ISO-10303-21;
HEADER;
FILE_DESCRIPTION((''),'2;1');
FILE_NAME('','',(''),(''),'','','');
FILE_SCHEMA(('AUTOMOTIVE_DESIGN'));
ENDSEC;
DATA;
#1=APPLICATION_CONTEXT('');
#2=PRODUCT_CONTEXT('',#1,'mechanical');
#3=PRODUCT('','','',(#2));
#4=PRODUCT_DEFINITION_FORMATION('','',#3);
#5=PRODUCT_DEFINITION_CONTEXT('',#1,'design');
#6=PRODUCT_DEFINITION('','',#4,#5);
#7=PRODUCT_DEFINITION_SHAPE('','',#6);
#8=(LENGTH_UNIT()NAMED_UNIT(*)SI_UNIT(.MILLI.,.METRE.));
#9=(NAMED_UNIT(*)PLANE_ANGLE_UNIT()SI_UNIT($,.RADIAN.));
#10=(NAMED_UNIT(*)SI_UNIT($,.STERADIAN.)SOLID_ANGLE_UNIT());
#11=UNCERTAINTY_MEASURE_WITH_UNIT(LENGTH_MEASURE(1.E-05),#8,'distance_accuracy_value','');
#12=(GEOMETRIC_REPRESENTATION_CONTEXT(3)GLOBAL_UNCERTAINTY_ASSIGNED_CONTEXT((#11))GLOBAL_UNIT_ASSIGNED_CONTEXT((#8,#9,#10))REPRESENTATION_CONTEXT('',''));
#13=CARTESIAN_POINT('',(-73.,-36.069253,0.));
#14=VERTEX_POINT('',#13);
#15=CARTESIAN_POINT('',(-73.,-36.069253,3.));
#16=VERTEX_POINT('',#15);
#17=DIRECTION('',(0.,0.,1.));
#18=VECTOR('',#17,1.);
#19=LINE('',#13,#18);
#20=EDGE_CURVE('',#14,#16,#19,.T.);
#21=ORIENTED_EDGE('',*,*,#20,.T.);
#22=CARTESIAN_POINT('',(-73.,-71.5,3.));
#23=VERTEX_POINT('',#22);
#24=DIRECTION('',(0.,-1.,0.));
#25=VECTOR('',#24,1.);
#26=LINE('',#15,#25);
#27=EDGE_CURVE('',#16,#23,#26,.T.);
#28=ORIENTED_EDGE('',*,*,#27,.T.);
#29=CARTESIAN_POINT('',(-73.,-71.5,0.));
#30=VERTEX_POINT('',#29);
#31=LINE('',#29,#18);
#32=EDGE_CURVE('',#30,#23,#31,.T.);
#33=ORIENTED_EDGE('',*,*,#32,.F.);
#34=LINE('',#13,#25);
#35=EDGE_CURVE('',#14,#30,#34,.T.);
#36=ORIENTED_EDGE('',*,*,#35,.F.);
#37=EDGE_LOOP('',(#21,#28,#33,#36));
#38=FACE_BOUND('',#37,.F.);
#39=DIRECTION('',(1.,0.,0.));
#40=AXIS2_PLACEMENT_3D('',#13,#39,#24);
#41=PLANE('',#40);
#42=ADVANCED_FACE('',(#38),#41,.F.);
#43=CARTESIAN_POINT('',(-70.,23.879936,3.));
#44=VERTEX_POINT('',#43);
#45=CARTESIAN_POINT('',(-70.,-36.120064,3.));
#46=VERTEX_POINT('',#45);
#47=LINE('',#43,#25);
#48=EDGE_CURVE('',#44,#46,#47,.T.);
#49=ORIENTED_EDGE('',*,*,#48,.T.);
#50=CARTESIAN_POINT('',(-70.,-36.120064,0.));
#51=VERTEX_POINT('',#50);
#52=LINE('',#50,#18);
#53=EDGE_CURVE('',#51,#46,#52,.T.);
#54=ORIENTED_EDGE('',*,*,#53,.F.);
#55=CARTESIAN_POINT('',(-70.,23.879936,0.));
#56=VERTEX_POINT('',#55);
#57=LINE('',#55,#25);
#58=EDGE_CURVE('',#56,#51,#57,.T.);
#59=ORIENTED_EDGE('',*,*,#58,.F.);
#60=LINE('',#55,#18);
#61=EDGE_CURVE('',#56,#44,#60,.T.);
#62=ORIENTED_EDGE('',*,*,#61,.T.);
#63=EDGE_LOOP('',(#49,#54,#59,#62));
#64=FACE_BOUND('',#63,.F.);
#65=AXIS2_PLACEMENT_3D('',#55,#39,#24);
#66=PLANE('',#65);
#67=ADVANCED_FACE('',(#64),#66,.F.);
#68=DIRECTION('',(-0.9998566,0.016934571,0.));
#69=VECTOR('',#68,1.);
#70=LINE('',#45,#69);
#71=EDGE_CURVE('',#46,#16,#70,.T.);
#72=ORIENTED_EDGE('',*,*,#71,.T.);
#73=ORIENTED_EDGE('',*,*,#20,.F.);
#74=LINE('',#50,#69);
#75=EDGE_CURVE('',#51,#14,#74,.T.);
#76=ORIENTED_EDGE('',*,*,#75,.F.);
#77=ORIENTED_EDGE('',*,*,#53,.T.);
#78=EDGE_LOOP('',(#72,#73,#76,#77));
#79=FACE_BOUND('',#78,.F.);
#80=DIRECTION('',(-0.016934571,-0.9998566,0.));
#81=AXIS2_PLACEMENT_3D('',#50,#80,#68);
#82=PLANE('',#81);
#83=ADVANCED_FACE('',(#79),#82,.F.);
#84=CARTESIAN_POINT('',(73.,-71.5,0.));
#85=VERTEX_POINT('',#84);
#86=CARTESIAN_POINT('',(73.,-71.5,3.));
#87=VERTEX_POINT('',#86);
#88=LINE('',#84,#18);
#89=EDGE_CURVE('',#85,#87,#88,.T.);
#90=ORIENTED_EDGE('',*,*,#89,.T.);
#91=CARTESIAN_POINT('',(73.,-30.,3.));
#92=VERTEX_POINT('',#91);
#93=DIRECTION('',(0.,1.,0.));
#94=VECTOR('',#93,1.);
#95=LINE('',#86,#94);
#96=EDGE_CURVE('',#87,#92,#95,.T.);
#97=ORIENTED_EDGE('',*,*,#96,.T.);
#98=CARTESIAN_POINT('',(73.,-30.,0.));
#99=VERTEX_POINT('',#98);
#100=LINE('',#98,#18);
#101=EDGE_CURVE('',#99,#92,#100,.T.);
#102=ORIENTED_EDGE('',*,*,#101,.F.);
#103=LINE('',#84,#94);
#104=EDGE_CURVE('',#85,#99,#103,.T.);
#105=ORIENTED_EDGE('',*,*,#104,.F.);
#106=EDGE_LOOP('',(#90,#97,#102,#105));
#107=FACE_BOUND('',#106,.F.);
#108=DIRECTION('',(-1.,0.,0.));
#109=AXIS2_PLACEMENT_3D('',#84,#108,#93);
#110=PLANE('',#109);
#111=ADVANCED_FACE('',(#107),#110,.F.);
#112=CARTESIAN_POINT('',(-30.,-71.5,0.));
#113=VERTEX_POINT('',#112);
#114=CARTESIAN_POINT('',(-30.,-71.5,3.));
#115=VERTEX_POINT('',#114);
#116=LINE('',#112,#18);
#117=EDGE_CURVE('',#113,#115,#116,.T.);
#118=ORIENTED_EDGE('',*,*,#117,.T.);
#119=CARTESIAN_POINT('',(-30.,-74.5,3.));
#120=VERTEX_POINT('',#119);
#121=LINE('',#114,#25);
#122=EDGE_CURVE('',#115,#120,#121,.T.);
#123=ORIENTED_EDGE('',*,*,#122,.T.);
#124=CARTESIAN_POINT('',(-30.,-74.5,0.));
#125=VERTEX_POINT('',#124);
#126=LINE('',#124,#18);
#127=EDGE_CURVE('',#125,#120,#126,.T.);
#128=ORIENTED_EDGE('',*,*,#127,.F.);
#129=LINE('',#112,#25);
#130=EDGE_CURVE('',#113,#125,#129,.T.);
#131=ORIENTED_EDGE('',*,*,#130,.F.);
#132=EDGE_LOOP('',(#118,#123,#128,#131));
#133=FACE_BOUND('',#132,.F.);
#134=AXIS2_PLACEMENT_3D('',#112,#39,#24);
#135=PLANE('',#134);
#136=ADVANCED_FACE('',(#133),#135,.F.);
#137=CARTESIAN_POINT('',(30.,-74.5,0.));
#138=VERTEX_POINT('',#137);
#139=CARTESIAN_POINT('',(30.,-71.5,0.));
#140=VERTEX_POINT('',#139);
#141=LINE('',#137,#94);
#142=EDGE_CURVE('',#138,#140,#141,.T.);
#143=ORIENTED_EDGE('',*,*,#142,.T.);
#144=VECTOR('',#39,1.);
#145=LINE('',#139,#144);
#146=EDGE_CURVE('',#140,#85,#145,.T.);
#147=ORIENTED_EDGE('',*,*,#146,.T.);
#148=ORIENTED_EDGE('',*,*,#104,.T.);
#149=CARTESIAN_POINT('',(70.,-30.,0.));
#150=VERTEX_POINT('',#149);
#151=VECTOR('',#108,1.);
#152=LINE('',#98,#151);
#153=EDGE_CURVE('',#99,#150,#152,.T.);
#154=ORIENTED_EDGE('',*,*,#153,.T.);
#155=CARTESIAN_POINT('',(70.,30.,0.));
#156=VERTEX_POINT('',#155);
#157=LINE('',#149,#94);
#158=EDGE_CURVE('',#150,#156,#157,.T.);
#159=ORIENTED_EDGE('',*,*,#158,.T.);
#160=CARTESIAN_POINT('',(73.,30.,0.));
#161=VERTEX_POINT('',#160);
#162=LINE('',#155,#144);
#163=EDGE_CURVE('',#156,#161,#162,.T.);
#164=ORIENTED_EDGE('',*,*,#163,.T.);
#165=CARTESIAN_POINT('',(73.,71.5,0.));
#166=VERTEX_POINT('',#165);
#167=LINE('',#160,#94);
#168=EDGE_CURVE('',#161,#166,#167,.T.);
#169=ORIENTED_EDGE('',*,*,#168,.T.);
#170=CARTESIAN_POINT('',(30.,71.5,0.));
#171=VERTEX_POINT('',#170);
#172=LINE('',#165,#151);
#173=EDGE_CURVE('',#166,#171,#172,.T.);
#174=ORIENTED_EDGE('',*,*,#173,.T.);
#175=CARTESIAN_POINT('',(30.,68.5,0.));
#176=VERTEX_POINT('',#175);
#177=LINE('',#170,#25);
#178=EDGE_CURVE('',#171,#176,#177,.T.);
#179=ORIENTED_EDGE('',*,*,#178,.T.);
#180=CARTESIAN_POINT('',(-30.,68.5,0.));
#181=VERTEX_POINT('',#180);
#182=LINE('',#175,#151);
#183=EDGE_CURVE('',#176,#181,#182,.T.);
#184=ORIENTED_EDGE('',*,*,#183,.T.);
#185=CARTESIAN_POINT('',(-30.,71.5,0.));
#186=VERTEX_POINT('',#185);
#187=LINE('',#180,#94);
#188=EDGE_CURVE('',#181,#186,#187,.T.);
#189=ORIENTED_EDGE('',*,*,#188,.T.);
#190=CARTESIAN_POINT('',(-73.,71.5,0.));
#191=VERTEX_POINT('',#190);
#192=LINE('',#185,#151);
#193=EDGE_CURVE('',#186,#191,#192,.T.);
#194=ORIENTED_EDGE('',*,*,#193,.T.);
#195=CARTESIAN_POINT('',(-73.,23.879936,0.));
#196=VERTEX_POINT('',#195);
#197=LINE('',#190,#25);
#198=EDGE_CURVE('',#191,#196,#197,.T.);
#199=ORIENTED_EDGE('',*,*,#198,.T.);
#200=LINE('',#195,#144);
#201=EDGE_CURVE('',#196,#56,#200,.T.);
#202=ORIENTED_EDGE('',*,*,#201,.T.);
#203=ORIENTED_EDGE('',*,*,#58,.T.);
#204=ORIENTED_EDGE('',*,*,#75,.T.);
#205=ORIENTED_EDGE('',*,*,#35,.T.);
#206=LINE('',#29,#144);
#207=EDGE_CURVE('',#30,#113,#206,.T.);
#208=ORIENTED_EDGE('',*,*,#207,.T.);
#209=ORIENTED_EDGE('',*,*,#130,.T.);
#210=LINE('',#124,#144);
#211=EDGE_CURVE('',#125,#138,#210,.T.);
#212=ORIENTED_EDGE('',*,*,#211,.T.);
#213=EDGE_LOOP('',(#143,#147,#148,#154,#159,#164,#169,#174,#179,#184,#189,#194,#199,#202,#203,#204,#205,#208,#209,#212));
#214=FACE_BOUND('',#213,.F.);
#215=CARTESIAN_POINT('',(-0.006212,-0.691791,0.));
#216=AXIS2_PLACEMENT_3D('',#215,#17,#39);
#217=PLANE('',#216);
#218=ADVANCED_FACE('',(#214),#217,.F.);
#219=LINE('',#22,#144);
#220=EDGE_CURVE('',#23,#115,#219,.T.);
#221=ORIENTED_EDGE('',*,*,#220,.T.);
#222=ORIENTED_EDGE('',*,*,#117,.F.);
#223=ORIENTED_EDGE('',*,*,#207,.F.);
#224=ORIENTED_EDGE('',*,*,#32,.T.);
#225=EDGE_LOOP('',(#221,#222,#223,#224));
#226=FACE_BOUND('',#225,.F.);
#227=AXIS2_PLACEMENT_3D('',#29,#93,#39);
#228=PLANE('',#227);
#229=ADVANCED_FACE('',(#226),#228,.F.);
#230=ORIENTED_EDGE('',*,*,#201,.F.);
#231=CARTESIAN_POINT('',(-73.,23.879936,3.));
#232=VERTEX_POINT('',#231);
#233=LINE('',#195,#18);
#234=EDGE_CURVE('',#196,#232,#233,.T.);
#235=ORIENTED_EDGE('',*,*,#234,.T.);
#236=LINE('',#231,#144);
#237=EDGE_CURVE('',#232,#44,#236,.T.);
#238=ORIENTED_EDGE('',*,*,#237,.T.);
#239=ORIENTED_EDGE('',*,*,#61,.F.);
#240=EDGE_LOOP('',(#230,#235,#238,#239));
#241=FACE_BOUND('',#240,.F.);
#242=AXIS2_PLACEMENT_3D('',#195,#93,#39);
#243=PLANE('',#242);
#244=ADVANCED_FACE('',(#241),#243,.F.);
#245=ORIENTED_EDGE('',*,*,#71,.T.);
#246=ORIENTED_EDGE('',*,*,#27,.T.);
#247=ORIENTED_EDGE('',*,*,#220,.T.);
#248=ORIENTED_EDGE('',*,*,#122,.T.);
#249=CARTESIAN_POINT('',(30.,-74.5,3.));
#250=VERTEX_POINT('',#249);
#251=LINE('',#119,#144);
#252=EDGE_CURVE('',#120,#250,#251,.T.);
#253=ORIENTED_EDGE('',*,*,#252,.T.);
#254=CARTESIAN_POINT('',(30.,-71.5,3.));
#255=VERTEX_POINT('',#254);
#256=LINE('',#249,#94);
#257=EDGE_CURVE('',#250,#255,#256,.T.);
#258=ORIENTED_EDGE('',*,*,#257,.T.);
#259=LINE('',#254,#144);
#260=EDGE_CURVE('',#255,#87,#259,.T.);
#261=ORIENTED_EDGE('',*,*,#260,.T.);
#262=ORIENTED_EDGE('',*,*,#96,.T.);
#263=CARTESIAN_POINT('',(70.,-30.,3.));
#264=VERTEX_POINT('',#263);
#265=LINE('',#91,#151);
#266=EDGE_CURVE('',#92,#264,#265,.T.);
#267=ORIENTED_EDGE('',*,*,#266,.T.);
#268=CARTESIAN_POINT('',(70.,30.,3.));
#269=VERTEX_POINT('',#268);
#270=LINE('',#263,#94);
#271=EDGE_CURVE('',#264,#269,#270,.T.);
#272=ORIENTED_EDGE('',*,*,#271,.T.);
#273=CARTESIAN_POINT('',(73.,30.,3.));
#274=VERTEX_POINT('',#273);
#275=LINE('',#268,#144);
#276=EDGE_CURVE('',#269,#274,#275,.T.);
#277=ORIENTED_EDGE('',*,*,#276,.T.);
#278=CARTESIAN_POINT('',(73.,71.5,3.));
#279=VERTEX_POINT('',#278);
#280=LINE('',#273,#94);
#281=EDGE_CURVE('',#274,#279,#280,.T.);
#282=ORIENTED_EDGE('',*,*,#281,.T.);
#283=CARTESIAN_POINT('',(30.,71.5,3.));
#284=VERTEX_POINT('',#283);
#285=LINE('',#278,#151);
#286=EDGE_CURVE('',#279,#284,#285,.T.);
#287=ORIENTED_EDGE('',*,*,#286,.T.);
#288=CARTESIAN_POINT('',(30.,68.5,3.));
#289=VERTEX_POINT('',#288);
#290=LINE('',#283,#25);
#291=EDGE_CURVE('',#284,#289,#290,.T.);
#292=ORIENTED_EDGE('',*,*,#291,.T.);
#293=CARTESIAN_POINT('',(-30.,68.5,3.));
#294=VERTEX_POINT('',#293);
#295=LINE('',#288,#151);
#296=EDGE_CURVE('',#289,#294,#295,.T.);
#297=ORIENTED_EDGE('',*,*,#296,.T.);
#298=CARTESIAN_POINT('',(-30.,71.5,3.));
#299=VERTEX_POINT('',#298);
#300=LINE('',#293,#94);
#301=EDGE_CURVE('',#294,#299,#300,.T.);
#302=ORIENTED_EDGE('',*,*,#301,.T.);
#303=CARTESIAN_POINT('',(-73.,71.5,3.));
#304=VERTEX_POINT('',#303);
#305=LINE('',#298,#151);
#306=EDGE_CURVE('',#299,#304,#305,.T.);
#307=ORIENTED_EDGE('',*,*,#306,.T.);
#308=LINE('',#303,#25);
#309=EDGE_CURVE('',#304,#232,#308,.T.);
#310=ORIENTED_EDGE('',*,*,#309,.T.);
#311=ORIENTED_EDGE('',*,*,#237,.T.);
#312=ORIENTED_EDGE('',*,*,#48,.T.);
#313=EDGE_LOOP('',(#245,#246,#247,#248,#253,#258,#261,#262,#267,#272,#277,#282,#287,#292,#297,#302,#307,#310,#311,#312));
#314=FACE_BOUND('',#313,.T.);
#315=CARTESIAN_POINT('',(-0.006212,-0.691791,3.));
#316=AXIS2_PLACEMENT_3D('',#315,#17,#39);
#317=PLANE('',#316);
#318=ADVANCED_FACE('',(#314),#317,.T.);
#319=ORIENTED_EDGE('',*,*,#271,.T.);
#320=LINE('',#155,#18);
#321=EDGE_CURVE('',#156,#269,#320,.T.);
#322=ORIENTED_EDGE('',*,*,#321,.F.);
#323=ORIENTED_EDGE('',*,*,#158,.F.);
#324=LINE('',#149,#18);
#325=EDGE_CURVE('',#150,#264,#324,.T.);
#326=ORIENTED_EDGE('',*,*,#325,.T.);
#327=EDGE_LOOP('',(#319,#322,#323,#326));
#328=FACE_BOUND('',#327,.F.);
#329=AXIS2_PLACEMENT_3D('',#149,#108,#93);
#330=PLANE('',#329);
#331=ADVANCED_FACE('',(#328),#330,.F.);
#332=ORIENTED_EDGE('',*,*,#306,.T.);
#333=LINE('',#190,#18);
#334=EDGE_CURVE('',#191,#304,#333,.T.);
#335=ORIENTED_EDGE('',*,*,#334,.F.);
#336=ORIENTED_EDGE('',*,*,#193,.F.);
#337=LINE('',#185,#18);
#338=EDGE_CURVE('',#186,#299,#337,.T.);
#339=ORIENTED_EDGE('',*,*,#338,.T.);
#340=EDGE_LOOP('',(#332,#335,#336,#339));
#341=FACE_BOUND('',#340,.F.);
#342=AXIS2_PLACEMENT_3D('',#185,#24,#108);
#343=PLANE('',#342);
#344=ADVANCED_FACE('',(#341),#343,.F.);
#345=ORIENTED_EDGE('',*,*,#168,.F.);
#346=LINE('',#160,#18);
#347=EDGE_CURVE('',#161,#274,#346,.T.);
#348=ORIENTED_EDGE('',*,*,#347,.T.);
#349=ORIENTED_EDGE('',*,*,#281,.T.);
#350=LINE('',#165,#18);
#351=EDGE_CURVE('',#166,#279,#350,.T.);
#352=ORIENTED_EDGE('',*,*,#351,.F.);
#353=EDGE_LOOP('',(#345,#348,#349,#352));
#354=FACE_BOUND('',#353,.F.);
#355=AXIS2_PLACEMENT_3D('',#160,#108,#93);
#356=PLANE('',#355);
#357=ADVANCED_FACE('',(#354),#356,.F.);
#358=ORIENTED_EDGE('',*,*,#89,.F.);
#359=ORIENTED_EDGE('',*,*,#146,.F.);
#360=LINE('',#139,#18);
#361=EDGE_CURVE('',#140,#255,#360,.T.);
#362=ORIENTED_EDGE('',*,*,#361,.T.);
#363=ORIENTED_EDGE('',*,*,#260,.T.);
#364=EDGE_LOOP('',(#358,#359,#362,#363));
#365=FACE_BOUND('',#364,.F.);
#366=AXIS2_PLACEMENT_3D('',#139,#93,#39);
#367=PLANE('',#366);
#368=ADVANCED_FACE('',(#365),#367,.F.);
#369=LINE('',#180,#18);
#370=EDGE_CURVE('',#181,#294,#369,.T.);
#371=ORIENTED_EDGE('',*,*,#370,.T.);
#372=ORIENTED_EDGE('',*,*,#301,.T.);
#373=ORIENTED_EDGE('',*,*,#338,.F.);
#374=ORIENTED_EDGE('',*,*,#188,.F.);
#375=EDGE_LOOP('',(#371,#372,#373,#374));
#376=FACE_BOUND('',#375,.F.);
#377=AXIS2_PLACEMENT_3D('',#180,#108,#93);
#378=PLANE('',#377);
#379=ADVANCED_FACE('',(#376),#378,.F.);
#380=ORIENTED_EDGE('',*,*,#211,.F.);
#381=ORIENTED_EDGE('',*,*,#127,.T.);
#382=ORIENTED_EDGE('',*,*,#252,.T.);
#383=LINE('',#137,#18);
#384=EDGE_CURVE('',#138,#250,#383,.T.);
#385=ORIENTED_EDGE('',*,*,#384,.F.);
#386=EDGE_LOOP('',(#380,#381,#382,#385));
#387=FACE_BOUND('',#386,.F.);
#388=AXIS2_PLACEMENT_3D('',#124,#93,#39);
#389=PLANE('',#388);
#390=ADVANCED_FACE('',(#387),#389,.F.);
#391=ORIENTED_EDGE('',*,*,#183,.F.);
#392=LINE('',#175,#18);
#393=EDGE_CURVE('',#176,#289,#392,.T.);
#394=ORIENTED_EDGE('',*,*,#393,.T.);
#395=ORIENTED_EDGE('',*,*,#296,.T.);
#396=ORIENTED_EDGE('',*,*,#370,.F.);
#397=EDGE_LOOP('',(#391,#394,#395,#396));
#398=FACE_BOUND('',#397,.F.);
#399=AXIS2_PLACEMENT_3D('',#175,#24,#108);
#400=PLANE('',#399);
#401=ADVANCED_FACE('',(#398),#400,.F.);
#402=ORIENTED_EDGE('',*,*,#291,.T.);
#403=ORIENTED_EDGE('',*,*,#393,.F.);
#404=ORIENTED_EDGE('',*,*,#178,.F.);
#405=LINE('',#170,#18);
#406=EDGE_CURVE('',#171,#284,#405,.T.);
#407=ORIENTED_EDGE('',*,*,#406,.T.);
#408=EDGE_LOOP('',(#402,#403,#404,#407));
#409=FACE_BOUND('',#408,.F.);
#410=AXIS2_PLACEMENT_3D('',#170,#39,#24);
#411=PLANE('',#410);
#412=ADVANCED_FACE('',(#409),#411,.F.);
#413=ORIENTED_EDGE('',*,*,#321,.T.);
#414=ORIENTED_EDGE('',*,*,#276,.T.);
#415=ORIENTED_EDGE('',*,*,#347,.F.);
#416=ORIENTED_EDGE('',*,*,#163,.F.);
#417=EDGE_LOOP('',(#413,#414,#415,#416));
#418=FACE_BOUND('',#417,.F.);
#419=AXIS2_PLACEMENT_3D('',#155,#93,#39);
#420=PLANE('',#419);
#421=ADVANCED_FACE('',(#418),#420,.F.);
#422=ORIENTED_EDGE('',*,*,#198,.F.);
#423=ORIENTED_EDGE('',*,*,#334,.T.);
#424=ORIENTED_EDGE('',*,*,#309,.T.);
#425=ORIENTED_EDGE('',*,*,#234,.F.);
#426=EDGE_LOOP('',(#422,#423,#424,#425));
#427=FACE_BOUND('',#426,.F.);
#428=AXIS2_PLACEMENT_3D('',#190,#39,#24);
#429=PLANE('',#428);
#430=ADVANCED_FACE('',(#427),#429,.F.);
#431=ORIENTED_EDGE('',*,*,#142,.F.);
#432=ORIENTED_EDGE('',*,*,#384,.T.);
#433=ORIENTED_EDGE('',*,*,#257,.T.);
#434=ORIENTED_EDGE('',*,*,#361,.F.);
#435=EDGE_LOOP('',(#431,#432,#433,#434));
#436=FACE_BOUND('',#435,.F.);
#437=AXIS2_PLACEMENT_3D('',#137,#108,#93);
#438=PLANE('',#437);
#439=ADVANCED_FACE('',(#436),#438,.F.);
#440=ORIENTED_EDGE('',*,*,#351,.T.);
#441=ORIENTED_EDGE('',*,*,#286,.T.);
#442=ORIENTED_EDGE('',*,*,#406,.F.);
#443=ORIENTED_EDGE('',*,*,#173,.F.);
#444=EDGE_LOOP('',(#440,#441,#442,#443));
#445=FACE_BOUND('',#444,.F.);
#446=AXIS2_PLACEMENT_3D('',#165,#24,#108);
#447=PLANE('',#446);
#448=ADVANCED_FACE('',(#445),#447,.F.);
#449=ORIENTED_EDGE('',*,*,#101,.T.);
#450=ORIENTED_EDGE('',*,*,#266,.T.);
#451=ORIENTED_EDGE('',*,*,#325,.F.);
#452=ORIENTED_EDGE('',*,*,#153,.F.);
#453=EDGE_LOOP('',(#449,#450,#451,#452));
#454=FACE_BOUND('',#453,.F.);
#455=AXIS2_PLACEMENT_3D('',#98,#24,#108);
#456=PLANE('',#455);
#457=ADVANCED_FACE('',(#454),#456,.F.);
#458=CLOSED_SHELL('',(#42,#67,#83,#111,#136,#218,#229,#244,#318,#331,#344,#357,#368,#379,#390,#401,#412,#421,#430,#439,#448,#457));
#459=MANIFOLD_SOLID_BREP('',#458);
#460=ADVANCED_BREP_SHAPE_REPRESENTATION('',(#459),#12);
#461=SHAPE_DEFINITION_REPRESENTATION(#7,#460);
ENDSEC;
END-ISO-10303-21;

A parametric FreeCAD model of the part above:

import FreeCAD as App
import Part
import Sketcher


def add_polygon(sketch, points):
    """Adds a closed chain of lines whose ends are joined by coincident constraints."""
    first, n = sketch.GeometryCount, len(points)
    for a, b in zip(points, points[1:] + points[:1]):
        sketch.addGeometry(Part.LineSegment(App.Vector(*a, 0), App.Vector(*b, 0)), False)
    for i in range(n):
        sketch.addConstraint(Sketcher.Constraint("Coincident", first + i, 2, first + (i + 1) % n, 1))

doc = App.newDocument("Part")
body = doc.addObject("PartDesign::Body", "Body")

# Sketch on XY plane
sketch1 = body.newObject("Sketcher::SketchObject", "Sketch")
sketch1.AttachmentSupport = (doc.getObject("XY_Plane"), [""])
sketch1.MapMode = "FlatFace"
add_polygon(sketch1, [(30, -71.5), (73, -71.5), (73, -30), (70, -30), (70, 30), (73, 30), (73, 71.5), (30, 71.5), (30, 68.5), (-30, 68.5), (-30, 71.5), (-73, 71.5), (-73, 23.879936), (-70, 23.879936), (-70, -36.120064), (-73, -36.069253), (-73, -71.5), (-30, -71.5), (-30, -74.5), (30, -74.5)])  # lines 0-19
sketch1.addConstraint([
    Sketcher.Constraint("Horizontal", 0),
    Sketcher.Constraint("Vertical", 1),
    Sketcher.Constraint("Horizontal", 2),
    Sketcher.Constraint("Vertical", 3),
    Sketcher.Constraint("Horizontal", 4),
    Sketcher.Constraint("Vertical", 5),
    Sketcher.Constraint("Horizontal", 6),
    Sketcher.Constraint("Vertical", 7),
    Sketcher.Constraint("Horizontal", 8),
    Sketcher.Constraint("Vertical", 9),
    Sketcher.Constraint("Horizontal", 10),
    Sketcher.Constraint("Vertical", 11),
    Sketcher.Constraint("Horizontal", 12),
    Sketcher.Constraint("Vertical", 13),
    Sketcher.Constraint("Vertical", 15),
    Sketcher.Constraint("Horizontal", 16),
    Sketcher.Constraint("Vertical", 17),
    Sketcher.Constraint("Horizontal", 18),
    Sketcher.Constraint("Vertical", 19),
    Sketcher.Constraint("Symmetric", 0, 2, 10, 2, -1, 1),
    Sketcher.Constraint("Symmetric", 5, 2, 15, 2, -1, 1),
    Sketcher.Constraint("Symmetric", 6, 2, 9, 2, -2),
    Sketcher.Constraint("Symmetric", 1, 2, 4, 2, -1),
    Sketcher.Constraint("Vertical", 9, 2, 16, 2),
    Sketcher.Constraint("Vertical", 7, 2, 18, 2),
    Sketcher.Constraint("Equal", 4, 12),
    Sketcher.Constraint("Equal", 18, 3),
    Sketcher.Constraint("Equal", 12, 7),
    Sketcher.Constraint("Equal", 3, 13),
    Sketcher.Constraint("Equal", 9, 17),
    Sketcher.Constraint("DistanceX", 0, 1, 0, 2, 43.0),
    Sketcher.Constraint("DistanceX", 2, 2, 2, 1, 3.0),
    Sketcher.Constraint("DistanceX", 8, 2, 8, 1, 60.0),
    Sketcher.Constraint("DistanceY", 1, 1, 1, 2, 41.5),
    Sketcher.Constraint("Distance", 14, 3.00043),
    Sketcher.Constraint("DistanceY", 11, 2, 11, 1, 47.620064),
])
pad1 = body.newObject("PartDesign::Pad", "Pad")
pad1.Profile = sketch1
pad1.Length = 3

doc.recompute()
